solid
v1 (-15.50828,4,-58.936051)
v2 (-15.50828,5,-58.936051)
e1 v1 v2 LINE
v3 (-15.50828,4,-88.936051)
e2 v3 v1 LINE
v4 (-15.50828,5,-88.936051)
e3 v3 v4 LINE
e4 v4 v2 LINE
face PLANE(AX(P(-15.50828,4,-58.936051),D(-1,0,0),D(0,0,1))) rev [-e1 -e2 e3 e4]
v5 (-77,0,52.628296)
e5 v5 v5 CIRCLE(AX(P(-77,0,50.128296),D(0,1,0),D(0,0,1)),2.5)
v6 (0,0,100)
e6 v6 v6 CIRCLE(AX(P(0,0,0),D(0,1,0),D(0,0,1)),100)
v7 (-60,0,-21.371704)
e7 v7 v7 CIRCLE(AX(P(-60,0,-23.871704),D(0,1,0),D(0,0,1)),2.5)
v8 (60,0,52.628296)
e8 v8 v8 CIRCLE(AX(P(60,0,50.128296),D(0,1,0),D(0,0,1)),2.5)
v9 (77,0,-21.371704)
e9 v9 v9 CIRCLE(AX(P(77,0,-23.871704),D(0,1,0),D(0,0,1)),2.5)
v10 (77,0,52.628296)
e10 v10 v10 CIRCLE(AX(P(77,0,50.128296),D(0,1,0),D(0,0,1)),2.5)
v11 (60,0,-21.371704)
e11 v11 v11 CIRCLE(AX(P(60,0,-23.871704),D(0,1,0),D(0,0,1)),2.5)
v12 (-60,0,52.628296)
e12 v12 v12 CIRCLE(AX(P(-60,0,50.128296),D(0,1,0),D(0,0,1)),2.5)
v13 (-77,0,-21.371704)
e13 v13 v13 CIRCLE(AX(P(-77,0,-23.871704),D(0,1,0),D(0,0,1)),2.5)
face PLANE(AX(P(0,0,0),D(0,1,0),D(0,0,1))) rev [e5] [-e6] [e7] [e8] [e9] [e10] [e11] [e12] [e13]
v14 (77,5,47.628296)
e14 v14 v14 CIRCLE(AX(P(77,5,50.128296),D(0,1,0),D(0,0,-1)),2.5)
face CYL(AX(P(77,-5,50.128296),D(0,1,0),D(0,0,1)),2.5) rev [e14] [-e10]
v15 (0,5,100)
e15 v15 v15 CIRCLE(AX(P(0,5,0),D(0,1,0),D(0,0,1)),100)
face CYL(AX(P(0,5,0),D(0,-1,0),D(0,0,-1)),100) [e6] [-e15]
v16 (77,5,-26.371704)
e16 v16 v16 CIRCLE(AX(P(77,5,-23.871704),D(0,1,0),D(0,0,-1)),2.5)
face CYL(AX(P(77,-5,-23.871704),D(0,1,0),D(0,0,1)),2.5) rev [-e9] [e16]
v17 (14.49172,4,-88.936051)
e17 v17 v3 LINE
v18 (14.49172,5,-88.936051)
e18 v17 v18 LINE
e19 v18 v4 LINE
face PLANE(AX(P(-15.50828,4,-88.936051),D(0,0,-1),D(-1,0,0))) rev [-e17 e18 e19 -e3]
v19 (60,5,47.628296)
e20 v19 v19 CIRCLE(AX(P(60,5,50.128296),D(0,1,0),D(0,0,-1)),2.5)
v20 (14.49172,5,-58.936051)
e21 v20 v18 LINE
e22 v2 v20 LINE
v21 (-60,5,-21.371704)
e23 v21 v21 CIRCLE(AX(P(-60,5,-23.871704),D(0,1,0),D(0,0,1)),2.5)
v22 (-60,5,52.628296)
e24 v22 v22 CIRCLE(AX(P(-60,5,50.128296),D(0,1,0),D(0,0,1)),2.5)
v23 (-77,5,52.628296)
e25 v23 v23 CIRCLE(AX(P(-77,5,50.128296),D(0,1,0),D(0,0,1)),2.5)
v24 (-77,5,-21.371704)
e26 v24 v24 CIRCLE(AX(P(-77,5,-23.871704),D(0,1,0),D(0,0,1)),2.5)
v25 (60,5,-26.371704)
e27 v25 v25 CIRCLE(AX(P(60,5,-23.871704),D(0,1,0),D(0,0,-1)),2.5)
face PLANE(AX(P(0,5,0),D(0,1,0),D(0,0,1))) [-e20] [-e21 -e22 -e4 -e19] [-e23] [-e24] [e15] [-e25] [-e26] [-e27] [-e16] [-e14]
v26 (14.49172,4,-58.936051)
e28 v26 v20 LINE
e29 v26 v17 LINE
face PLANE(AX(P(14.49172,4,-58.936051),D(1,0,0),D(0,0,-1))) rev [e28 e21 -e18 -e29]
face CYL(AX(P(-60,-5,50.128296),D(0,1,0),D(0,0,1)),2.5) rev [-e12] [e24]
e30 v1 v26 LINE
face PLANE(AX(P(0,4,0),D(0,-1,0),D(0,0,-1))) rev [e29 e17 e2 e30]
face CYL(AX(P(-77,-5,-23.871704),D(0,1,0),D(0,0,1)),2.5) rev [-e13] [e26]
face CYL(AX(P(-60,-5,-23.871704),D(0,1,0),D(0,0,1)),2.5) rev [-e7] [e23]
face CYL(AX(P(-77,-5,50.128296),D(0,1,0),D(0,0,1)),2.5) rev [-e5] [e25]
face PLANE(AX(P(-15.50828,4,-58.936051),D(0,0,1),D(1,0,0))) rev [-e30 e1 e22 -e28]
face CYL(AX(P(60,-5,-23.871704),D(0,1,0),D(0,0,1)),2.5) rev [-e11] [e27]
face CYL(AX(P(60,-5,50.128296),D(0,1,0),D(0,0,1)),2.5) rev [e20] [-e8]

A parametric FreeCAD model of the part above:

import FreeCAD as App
import Part
import Sketcher
from FreeCAD import Vector
Q = App.Units.Quantity


def add_polygon(sketch, points):
    """Adds a closed chain of lines whose ends are joined by coincident constraints."""
    first, n = sketch.GeometryCount, len(points)
    for a, b in zip(points, points[1:] + points[:1]):
        sketch.addGeometry(Part.LineSegment(App.Vector(*a, 0), App.Vector(*b, 0)), False)
    for i in range(n):
        sketch.addConstraint(Sketcher.Constraint("Coincident", first + i, 2, first + (i + 1) % n, 1))

doc = App.newDocument("Part")
body = doc.addObject("PartDesign::Body", "Body")

# Sketch on XZ plane
sketch1 = body.newObject("Sketcher::SketchObject", "Sketch")
sketch1.AttachmentSupport = (doc.getObject("XZ_Plane"), [""])
sketch1.MapMode = "FlatFace"
sketch1.addGeometry(Part.Circle(Vector(0, 0, 0), Vector(0, 0, 1), 100), False)
sketch1.addConstraint([
    Sketcher.Constraint("Coincident", 0, 3, -1, 1),
    Sketcher.Constraint("Diameter", 0, Q("200 mm")),
])
pad1 = body.newObject("PartDesign::Pad", "Pad")
pad1.Profile = sketch1
pad1.Length = 5
pad1.Reversed = True

# Sketch on XZ plane
sketch2 = body.newObject("Sketcher::SketchObject", "Sketch001")
sketch2.AttachmentSupport = (doc.getObject("XZ_Plane"), [""])
sketch2.MapMode = "FlatFace"
sketch2.AttachmentOffset = App.Placement(Vector(0, 0, -5), App.Rotation())
sketch2.addGeometry([
    Part.Circle(Vector(-77, 50.128296, 0), Vector(0, 0, 1), 2.5),  # 0
    Part.Circle(Vector(-77, -23.871704, 0), Vector(0, 0, 1), 2.5),  # 1
    Part.Circle(Vector(-60, 50.128296, 0), Vector(0, 0, 1), 2.5),  # 2
    Part.Circle(Vector(-60, -23.871704, 0), Vector(0, 0, 1), 2.5),  # 3
    Part.Circle(Vector(60, -23.871704, 0), Vector(0, 0, 1), 2.5),  # 4
    Part.Circle(Vector(60, 50.128296, 0), Vector(0, 0, 1), 2.5),  # 5
    Part.Circle(Vector(77, -23.871704, 0), Vector(0, 0, 1), 2.5),  # 6
    Part.Circle(Vector(77, 50.128296, 0), Vector(0, 0, 1), 2.5),  # 7
], False)
sketch2.addConstraint([
    Sketcher.Constraint("Equal", 0, 1),
    Sketcher.Constraint("Equal", 1, 2),
    Sketcher.Constraint("Equal", 2, 3),
    Sketcher.Constraint("Equal", 3, 4),
    Sketcher.Constraint("Equal", 4, 5),
    Sketcher.Constraint("Equal", 5, 6),
    Sketcher.Constraint("Equal", 6, 7),
    Sketcher.Constraint("Symmetric", 3, 3, 4, 3, -2),
    Sketcher.Constraint("Symmetric", 2, 3, 5, 3, -2),
    Sketcher.Constraint("Symmetric", 1, 3, 6, 3, -2),
    Sketcher.Constraint("Symmetric", 0, 3, 7, 3, -2),
    Sketcher.Constraint("Horizontal", 0, 3, 2, 3),
    Sketcher.Constraint("Horizontal", 1, 3, 3, 3),
    Sketcher.Constraint("Vertical", 0, 3, 1, 3),
    Sketcher.Constraint("Vertical", 2, 3, 3, 3),
    Sketcher.Constraint("Diameter", 0, Q("5 mm")),
    Sketcher.Constraint("DistanceX", 0, 3, -1, 1, Q("77 mm")),
    Sketcher.Constraint("DistanceX", 2, 3, -1, 1, Q("60 mm")),
    Sketcher.Constraint("DistanceY", 1, 3, 0, 3, Q("74 mm")),
    Sketcher.Constraint("DistanceY", -1, 1, 0, 3, Q("50.128296 mm")),
])
pocket1 = body.newObject("PartDesign::Pocket", "Pocket")
pocket1.Profile = sketch2
pocket1.Length = 10
pocket1.Reversed = True

# Sketch on XZ plane
sketch3 = body.newObject("Sketcher::SketchObject", "Sketch002")
sketch3.AttachmentSupport = (doc.getObject("XZ_Plane"), [""])
sketch3.MapMode = "FlatFace"
sketch3.AttachmentOffset = App.Placement(Vector(0, 0, -5), App.Rotation())
add_polygon(sketch3, [(-15.50828, -88.936051), (-15.50828, -58.936051), (14.49172, -58.936051), (14.49172, -88.936051)])  # lines 0-3
sketch3.addConstraint([
    Sketcher.Constraint("Vertical", 0),
    Sketcher.Constraint("Horizontal", 1),
    Sketcher.Constraint("Vertical", 2),
    Sketcher.Constraint("Horizontal", 3),
    Sketcher.Constraint("Equal", 3, 0),
    Sketcher.Constraint("DistanceX", 1, 1, 1, 2, Q("30 mm")),
    Sketcher.Constraint("DistanceX", 0, 2, -1, 1, Q("15.50828 mm")),
    Sketcher.Constraint("DistanceY", 0, 2, -1, 1, Q("58.936051 mm")),
])
pocket2 = body.newObject("PartDesign::Pocket", "Pocket001")
pocket2.Profile = sketch3
pocket2.Length = 1
pocket2.Reversed = True

doc.recompute()
